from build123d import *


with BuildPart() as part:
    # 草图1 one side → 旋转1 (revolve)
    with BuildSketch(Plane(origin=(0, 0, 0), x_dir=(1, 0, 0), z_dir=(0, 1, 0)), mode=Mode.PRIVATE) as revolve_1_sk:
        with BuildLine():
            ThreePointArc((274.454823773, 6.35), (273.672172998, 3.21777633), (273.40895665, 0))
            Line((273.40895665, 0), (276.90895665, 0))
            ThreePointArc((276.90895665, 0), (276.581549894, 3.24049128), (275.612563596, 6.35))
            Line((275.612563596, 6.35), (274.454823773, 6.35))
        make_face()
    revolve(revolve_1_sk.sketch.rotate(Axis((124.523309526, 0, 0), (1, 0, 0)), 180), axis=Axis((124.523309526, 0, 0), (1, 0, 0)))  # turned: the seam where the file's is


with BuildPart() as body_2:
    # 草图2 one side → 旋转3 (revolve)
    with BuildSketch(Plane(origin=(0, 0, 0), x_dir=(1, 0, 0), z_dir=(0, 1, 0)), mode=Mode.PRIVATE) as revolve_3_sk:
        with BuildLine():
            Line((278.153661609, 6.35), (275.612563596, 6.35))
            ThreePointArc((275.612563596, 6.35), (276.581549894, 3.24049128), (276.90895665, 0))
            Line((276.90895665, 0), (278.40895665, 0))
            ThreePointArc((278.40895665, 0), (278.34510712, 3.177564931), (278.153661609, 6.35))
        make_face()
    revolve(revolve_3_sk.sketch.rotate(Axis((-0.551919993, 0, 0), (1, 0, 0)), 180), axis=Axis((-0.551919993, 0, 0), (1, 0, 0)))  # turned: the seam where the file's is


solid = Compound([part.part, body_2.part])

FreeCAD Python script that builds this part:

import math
import FreeCAD as App
import Part
import Sketcher

V = App.Vector

doc = App.newDocument("Part")
body = doc.addObject("PartDesign::Body", "Body")

# Sketch on XZ plane
sketch1 = body.newObject("Sketcher::SketchObject", "Sketch")
sketch1.AttachmentSupport = (doc.getObject("XZ_Plane"), [""])
sketch1.MapMode = "FlatFace"
sketch1.addGeometry(Part.ArcOfCircle(Part.Circle(V(293.2, 0, 0), V(0, 0, 1), 19.8), math.radians(-180), math.radians(-161.29)), False)
sketch1.addGeometry(Part.LineSegment(V(273.4, 0, 0), V(276.9, 0, 0)), False)
sketch1.addGeometry(Part.ArcOfCircle(Part.Circle(V(260.7, 0, 0), V(0, 0, 1), 16.2), math.radians(-23), math.radians(0)), False)
sketch1.addGeometry(Part.LineSegment(V(275.6, -6.3, 0), V(274.5, -6.3, 0)), False)
sketch1.addConstraint(Sketcher.Constraint("Coincident", 0, 1, 1, 1))
sketch1.addConstraint(Sketcher.Constraint("Coincident", 1, 2, 2, 2))
sketch1.addConstraint(Sketcher.Constraint("Coincident", 2, 1, 3, 1))
sketch1.addConstraint(Sketcher.Constraint("Coincident", 3, 2, 0, 2))
sketch1.addConstraint(Sketcher.Constraint("Horizontal", 1))
sketch1.addConstraint(Sketcher.Constraint("Horizontal", 3))
sketch1.addConstraint(Sketcher.Constraint("PointOnObject", 0, 3, -1))
sketch1.addConstraint(Sketcher.Constraint("PointOnObject", 2, 3, -1))
sketch1.addConstraint(Sketcher.Constraint("PointOnObject", 0, 1, -1))
sketch1.addConstraint(Sketcher.Constraint("Radius", 0, 19.8))
sketch1.addConstraint(Sketcher.Constraint("Radius", 2, 16.2))
sketch1.addConstraint(Sketcher.Constraint("DistanceX", 1, 1, 1, 2, 3.5))
sketch1.addConstraint(Sketcher.Constraint("DistanceY", 2, 1, -1, 1, 6.35))
sketch1.addConstraint(Sketcher.Constraint("DistanceX", -1, 1, 0, 3, 293.208957))
revolution = body.newObject("PartDesign::Revolution", "Revolution")
revolution.Profile = sketch1
revolution.ReferenceAxis = (sketch1, ["H_Axis"])
revolution.Angle = 360
body2 = doc.addObject("PartDesign::Body", "Body001")

# Sketch on XZ plane
sketch2 = body2.newObject("Sketcher::SketchObject", "Sketch001")
sketch2.AttachmentSupport = (doc.getObject("XZ_Plane001"), [""])
sketch2.MapMode = "FlatFace"
sketch2.addGeometry(Part.LineSegment(V(278.2, -6.3, 0), V(275.6, -6.3, 0)), False)
sketch2.addGeometry(Part.ArcOfCircle(Part.Circle(V(260.7, 0, 0), V(0, 0, 1), 16.2), math.radians(-23), math.radians(0)), False)
sketch2.addGeometry(Part.LineSegment(V(276.9, 0, 0), V(278.4, 0, 0)), False)
sketch2.addGeometry(Part.ArcOfCircle(Part.Circle(V(199.3, 0, 0), V(0, 0, 1), 79.1), math.radians(-4.6), math.radians(0)), False)
sketch2.addConstraint(Sketcher.Constraint("Coincident", 0, 2, 1, 1))
sketch2.addConstraint(Sketcher.Constraint("Coincident", 1, 2, 2, 1))
sketch2.addConstraint(Sketcher.Constraint("Coincident", 2, 2, 3, 2))
sketch2.addConstraint(Sketcher.Constraint("Coincident", 3, 1, 0, 1))
sketch2.addConstraint(Sketcher.Constraint("Horizontal", 0))
sketch2.addConstraint(Sketcher.Constraint("Horizontal", 2))
sketch2.addConstraint(Sketcher.Constraint("PointOnObject", 1, 3, -1))
sketch2.addConstraint(Sketcher.Constraint("PointOnObject", 3, 3, -1))
sketch2.addConstraint(Sketcher.Constraint("PointOnObject", 1, 2, -1))
sketch2.addConstraint(Sketcher.Constraint("Radius", 1, 16.2))
sketch2.addConstraint(Sketcher.Constraint("Radius", 3, 79.1))
sketch2.addConstraint(Sketcher.Constraint("DistanceX", 2, 1, 2, 2, 1.5))
sketch2.addConstraint(Sketcher.Constraint("DistanceY", 0, 2, -1, 1, 6.35))
sketch2.addConstraint(Sketcher.Constraint("DistanceX", -1, 1, 3, 1, 278.153662))
revolution2 = body2.newObject("PartDesign::Revolution", "Revolution001")
revolution2.Profile = sketch2
revolution2.ReferenceAxis = (sketch2, ["H_Axis"])
revolution2.Angle = 360

doc.recompute()
